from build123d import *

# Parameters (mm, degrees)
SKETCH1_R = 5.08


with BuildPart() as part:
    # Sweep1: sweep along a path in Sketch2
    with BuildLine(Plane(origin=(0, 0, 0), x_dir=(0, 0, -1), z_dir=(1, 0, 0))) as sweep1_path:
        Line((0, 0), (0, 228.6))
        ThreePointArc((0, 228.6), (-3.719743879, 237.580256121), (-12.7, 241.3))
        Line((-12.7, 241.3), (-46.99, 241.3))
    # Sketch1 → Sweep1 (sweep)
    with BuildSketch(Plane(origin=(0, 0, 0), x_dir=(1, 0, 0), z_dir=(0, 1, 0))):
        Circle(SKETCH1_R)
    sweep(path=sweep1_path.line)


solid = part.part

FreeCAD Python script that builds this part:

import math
import FreeCAD as App
import Part
import Sketcher
from FreeCAD import Vector
Q = App.Units.Quantity

doc = App.newDocument("Part")
body = doc.addObject("PartDesign::Body", "Body")

# Sketch on XZ plane
sketch1 = body.newObject("Sketcher::SketchObject", "Sketch")
sketch1.AttachmentSupport = (doc.getObject("XZ_Plane"), [""])
sketch1.MapMode = "FlatFace"
sketch1.addGeometry(Part.Circle(Vector(0, 0, 0), Vector(0, 0, 1), 5), False)
sketch1.addConstraint(Sketcher.Constraint("Coincident", 0, 3, -1, 1))
sketch1.addConstraint(Sketcher.Constraint("Diameter", 0, Q("0.4 in")))

# Sketch on YZ plane
sketch2 = body.newObject("Sketcher::SketchObject", "Sketch001")
sketch2.AttachmentSupport = (doc.getObject("YZ_Plane"), [""])
sketch2.MapMode = "FlatFace"
sketch2.addGeometry(Part.LineSegment(Vector(0, 0, 0), Vector(229, 0, 0)), False)
sketch2.addGeometry(Part.ArcOfCircle(Part.Circle(Vector(229, 13, 0), Vector(0, 0, 1), 13), math.radians(-90), math.radians(0)), False)
sketch2.addGeometry(Part.LineSegment(Vector(241, 13, 0), Vector(241, 47, 0)), False)
sketch2.addConstraint(Sketcher.Constraint("Tangent", 0, 2, 1, 1))
sketch2.addConstraint(Sketcher.Constraint("Tangent", 1, 2, 2, 1))
sketch2.addConstraint(Sketcher.Constraint("Horizontal", 0))
sketch2.addConstraint(Sketcher.Constraint("Vertical", 2))
sketch2.addConstraint(Sketcher.Constraint("Coincident", 0, 1, -1, 1))
sketch2.addConstraint(Sketcher.Constraint("Radius", 1, Q("0.5 in")))
sketch2.addConstraint(Sketcher.Constraint("DistanceX", 0, 1, 0, 2, Q("9 in")))
sketch2.addConstraint(Sketcher.Constraint("DistanceY", 2, 1, 2, 2, Q("1.35 in")))
doc.recompute()

additivepipe = body.newObject("PartDesign::AdditivePipe", "AdditivePipe")
additivepipe.Profile = sketch1
additivepipe.Spine = (sketch2, ["Edge1", "Edge2", "Edge3"])

doc.recompute()
